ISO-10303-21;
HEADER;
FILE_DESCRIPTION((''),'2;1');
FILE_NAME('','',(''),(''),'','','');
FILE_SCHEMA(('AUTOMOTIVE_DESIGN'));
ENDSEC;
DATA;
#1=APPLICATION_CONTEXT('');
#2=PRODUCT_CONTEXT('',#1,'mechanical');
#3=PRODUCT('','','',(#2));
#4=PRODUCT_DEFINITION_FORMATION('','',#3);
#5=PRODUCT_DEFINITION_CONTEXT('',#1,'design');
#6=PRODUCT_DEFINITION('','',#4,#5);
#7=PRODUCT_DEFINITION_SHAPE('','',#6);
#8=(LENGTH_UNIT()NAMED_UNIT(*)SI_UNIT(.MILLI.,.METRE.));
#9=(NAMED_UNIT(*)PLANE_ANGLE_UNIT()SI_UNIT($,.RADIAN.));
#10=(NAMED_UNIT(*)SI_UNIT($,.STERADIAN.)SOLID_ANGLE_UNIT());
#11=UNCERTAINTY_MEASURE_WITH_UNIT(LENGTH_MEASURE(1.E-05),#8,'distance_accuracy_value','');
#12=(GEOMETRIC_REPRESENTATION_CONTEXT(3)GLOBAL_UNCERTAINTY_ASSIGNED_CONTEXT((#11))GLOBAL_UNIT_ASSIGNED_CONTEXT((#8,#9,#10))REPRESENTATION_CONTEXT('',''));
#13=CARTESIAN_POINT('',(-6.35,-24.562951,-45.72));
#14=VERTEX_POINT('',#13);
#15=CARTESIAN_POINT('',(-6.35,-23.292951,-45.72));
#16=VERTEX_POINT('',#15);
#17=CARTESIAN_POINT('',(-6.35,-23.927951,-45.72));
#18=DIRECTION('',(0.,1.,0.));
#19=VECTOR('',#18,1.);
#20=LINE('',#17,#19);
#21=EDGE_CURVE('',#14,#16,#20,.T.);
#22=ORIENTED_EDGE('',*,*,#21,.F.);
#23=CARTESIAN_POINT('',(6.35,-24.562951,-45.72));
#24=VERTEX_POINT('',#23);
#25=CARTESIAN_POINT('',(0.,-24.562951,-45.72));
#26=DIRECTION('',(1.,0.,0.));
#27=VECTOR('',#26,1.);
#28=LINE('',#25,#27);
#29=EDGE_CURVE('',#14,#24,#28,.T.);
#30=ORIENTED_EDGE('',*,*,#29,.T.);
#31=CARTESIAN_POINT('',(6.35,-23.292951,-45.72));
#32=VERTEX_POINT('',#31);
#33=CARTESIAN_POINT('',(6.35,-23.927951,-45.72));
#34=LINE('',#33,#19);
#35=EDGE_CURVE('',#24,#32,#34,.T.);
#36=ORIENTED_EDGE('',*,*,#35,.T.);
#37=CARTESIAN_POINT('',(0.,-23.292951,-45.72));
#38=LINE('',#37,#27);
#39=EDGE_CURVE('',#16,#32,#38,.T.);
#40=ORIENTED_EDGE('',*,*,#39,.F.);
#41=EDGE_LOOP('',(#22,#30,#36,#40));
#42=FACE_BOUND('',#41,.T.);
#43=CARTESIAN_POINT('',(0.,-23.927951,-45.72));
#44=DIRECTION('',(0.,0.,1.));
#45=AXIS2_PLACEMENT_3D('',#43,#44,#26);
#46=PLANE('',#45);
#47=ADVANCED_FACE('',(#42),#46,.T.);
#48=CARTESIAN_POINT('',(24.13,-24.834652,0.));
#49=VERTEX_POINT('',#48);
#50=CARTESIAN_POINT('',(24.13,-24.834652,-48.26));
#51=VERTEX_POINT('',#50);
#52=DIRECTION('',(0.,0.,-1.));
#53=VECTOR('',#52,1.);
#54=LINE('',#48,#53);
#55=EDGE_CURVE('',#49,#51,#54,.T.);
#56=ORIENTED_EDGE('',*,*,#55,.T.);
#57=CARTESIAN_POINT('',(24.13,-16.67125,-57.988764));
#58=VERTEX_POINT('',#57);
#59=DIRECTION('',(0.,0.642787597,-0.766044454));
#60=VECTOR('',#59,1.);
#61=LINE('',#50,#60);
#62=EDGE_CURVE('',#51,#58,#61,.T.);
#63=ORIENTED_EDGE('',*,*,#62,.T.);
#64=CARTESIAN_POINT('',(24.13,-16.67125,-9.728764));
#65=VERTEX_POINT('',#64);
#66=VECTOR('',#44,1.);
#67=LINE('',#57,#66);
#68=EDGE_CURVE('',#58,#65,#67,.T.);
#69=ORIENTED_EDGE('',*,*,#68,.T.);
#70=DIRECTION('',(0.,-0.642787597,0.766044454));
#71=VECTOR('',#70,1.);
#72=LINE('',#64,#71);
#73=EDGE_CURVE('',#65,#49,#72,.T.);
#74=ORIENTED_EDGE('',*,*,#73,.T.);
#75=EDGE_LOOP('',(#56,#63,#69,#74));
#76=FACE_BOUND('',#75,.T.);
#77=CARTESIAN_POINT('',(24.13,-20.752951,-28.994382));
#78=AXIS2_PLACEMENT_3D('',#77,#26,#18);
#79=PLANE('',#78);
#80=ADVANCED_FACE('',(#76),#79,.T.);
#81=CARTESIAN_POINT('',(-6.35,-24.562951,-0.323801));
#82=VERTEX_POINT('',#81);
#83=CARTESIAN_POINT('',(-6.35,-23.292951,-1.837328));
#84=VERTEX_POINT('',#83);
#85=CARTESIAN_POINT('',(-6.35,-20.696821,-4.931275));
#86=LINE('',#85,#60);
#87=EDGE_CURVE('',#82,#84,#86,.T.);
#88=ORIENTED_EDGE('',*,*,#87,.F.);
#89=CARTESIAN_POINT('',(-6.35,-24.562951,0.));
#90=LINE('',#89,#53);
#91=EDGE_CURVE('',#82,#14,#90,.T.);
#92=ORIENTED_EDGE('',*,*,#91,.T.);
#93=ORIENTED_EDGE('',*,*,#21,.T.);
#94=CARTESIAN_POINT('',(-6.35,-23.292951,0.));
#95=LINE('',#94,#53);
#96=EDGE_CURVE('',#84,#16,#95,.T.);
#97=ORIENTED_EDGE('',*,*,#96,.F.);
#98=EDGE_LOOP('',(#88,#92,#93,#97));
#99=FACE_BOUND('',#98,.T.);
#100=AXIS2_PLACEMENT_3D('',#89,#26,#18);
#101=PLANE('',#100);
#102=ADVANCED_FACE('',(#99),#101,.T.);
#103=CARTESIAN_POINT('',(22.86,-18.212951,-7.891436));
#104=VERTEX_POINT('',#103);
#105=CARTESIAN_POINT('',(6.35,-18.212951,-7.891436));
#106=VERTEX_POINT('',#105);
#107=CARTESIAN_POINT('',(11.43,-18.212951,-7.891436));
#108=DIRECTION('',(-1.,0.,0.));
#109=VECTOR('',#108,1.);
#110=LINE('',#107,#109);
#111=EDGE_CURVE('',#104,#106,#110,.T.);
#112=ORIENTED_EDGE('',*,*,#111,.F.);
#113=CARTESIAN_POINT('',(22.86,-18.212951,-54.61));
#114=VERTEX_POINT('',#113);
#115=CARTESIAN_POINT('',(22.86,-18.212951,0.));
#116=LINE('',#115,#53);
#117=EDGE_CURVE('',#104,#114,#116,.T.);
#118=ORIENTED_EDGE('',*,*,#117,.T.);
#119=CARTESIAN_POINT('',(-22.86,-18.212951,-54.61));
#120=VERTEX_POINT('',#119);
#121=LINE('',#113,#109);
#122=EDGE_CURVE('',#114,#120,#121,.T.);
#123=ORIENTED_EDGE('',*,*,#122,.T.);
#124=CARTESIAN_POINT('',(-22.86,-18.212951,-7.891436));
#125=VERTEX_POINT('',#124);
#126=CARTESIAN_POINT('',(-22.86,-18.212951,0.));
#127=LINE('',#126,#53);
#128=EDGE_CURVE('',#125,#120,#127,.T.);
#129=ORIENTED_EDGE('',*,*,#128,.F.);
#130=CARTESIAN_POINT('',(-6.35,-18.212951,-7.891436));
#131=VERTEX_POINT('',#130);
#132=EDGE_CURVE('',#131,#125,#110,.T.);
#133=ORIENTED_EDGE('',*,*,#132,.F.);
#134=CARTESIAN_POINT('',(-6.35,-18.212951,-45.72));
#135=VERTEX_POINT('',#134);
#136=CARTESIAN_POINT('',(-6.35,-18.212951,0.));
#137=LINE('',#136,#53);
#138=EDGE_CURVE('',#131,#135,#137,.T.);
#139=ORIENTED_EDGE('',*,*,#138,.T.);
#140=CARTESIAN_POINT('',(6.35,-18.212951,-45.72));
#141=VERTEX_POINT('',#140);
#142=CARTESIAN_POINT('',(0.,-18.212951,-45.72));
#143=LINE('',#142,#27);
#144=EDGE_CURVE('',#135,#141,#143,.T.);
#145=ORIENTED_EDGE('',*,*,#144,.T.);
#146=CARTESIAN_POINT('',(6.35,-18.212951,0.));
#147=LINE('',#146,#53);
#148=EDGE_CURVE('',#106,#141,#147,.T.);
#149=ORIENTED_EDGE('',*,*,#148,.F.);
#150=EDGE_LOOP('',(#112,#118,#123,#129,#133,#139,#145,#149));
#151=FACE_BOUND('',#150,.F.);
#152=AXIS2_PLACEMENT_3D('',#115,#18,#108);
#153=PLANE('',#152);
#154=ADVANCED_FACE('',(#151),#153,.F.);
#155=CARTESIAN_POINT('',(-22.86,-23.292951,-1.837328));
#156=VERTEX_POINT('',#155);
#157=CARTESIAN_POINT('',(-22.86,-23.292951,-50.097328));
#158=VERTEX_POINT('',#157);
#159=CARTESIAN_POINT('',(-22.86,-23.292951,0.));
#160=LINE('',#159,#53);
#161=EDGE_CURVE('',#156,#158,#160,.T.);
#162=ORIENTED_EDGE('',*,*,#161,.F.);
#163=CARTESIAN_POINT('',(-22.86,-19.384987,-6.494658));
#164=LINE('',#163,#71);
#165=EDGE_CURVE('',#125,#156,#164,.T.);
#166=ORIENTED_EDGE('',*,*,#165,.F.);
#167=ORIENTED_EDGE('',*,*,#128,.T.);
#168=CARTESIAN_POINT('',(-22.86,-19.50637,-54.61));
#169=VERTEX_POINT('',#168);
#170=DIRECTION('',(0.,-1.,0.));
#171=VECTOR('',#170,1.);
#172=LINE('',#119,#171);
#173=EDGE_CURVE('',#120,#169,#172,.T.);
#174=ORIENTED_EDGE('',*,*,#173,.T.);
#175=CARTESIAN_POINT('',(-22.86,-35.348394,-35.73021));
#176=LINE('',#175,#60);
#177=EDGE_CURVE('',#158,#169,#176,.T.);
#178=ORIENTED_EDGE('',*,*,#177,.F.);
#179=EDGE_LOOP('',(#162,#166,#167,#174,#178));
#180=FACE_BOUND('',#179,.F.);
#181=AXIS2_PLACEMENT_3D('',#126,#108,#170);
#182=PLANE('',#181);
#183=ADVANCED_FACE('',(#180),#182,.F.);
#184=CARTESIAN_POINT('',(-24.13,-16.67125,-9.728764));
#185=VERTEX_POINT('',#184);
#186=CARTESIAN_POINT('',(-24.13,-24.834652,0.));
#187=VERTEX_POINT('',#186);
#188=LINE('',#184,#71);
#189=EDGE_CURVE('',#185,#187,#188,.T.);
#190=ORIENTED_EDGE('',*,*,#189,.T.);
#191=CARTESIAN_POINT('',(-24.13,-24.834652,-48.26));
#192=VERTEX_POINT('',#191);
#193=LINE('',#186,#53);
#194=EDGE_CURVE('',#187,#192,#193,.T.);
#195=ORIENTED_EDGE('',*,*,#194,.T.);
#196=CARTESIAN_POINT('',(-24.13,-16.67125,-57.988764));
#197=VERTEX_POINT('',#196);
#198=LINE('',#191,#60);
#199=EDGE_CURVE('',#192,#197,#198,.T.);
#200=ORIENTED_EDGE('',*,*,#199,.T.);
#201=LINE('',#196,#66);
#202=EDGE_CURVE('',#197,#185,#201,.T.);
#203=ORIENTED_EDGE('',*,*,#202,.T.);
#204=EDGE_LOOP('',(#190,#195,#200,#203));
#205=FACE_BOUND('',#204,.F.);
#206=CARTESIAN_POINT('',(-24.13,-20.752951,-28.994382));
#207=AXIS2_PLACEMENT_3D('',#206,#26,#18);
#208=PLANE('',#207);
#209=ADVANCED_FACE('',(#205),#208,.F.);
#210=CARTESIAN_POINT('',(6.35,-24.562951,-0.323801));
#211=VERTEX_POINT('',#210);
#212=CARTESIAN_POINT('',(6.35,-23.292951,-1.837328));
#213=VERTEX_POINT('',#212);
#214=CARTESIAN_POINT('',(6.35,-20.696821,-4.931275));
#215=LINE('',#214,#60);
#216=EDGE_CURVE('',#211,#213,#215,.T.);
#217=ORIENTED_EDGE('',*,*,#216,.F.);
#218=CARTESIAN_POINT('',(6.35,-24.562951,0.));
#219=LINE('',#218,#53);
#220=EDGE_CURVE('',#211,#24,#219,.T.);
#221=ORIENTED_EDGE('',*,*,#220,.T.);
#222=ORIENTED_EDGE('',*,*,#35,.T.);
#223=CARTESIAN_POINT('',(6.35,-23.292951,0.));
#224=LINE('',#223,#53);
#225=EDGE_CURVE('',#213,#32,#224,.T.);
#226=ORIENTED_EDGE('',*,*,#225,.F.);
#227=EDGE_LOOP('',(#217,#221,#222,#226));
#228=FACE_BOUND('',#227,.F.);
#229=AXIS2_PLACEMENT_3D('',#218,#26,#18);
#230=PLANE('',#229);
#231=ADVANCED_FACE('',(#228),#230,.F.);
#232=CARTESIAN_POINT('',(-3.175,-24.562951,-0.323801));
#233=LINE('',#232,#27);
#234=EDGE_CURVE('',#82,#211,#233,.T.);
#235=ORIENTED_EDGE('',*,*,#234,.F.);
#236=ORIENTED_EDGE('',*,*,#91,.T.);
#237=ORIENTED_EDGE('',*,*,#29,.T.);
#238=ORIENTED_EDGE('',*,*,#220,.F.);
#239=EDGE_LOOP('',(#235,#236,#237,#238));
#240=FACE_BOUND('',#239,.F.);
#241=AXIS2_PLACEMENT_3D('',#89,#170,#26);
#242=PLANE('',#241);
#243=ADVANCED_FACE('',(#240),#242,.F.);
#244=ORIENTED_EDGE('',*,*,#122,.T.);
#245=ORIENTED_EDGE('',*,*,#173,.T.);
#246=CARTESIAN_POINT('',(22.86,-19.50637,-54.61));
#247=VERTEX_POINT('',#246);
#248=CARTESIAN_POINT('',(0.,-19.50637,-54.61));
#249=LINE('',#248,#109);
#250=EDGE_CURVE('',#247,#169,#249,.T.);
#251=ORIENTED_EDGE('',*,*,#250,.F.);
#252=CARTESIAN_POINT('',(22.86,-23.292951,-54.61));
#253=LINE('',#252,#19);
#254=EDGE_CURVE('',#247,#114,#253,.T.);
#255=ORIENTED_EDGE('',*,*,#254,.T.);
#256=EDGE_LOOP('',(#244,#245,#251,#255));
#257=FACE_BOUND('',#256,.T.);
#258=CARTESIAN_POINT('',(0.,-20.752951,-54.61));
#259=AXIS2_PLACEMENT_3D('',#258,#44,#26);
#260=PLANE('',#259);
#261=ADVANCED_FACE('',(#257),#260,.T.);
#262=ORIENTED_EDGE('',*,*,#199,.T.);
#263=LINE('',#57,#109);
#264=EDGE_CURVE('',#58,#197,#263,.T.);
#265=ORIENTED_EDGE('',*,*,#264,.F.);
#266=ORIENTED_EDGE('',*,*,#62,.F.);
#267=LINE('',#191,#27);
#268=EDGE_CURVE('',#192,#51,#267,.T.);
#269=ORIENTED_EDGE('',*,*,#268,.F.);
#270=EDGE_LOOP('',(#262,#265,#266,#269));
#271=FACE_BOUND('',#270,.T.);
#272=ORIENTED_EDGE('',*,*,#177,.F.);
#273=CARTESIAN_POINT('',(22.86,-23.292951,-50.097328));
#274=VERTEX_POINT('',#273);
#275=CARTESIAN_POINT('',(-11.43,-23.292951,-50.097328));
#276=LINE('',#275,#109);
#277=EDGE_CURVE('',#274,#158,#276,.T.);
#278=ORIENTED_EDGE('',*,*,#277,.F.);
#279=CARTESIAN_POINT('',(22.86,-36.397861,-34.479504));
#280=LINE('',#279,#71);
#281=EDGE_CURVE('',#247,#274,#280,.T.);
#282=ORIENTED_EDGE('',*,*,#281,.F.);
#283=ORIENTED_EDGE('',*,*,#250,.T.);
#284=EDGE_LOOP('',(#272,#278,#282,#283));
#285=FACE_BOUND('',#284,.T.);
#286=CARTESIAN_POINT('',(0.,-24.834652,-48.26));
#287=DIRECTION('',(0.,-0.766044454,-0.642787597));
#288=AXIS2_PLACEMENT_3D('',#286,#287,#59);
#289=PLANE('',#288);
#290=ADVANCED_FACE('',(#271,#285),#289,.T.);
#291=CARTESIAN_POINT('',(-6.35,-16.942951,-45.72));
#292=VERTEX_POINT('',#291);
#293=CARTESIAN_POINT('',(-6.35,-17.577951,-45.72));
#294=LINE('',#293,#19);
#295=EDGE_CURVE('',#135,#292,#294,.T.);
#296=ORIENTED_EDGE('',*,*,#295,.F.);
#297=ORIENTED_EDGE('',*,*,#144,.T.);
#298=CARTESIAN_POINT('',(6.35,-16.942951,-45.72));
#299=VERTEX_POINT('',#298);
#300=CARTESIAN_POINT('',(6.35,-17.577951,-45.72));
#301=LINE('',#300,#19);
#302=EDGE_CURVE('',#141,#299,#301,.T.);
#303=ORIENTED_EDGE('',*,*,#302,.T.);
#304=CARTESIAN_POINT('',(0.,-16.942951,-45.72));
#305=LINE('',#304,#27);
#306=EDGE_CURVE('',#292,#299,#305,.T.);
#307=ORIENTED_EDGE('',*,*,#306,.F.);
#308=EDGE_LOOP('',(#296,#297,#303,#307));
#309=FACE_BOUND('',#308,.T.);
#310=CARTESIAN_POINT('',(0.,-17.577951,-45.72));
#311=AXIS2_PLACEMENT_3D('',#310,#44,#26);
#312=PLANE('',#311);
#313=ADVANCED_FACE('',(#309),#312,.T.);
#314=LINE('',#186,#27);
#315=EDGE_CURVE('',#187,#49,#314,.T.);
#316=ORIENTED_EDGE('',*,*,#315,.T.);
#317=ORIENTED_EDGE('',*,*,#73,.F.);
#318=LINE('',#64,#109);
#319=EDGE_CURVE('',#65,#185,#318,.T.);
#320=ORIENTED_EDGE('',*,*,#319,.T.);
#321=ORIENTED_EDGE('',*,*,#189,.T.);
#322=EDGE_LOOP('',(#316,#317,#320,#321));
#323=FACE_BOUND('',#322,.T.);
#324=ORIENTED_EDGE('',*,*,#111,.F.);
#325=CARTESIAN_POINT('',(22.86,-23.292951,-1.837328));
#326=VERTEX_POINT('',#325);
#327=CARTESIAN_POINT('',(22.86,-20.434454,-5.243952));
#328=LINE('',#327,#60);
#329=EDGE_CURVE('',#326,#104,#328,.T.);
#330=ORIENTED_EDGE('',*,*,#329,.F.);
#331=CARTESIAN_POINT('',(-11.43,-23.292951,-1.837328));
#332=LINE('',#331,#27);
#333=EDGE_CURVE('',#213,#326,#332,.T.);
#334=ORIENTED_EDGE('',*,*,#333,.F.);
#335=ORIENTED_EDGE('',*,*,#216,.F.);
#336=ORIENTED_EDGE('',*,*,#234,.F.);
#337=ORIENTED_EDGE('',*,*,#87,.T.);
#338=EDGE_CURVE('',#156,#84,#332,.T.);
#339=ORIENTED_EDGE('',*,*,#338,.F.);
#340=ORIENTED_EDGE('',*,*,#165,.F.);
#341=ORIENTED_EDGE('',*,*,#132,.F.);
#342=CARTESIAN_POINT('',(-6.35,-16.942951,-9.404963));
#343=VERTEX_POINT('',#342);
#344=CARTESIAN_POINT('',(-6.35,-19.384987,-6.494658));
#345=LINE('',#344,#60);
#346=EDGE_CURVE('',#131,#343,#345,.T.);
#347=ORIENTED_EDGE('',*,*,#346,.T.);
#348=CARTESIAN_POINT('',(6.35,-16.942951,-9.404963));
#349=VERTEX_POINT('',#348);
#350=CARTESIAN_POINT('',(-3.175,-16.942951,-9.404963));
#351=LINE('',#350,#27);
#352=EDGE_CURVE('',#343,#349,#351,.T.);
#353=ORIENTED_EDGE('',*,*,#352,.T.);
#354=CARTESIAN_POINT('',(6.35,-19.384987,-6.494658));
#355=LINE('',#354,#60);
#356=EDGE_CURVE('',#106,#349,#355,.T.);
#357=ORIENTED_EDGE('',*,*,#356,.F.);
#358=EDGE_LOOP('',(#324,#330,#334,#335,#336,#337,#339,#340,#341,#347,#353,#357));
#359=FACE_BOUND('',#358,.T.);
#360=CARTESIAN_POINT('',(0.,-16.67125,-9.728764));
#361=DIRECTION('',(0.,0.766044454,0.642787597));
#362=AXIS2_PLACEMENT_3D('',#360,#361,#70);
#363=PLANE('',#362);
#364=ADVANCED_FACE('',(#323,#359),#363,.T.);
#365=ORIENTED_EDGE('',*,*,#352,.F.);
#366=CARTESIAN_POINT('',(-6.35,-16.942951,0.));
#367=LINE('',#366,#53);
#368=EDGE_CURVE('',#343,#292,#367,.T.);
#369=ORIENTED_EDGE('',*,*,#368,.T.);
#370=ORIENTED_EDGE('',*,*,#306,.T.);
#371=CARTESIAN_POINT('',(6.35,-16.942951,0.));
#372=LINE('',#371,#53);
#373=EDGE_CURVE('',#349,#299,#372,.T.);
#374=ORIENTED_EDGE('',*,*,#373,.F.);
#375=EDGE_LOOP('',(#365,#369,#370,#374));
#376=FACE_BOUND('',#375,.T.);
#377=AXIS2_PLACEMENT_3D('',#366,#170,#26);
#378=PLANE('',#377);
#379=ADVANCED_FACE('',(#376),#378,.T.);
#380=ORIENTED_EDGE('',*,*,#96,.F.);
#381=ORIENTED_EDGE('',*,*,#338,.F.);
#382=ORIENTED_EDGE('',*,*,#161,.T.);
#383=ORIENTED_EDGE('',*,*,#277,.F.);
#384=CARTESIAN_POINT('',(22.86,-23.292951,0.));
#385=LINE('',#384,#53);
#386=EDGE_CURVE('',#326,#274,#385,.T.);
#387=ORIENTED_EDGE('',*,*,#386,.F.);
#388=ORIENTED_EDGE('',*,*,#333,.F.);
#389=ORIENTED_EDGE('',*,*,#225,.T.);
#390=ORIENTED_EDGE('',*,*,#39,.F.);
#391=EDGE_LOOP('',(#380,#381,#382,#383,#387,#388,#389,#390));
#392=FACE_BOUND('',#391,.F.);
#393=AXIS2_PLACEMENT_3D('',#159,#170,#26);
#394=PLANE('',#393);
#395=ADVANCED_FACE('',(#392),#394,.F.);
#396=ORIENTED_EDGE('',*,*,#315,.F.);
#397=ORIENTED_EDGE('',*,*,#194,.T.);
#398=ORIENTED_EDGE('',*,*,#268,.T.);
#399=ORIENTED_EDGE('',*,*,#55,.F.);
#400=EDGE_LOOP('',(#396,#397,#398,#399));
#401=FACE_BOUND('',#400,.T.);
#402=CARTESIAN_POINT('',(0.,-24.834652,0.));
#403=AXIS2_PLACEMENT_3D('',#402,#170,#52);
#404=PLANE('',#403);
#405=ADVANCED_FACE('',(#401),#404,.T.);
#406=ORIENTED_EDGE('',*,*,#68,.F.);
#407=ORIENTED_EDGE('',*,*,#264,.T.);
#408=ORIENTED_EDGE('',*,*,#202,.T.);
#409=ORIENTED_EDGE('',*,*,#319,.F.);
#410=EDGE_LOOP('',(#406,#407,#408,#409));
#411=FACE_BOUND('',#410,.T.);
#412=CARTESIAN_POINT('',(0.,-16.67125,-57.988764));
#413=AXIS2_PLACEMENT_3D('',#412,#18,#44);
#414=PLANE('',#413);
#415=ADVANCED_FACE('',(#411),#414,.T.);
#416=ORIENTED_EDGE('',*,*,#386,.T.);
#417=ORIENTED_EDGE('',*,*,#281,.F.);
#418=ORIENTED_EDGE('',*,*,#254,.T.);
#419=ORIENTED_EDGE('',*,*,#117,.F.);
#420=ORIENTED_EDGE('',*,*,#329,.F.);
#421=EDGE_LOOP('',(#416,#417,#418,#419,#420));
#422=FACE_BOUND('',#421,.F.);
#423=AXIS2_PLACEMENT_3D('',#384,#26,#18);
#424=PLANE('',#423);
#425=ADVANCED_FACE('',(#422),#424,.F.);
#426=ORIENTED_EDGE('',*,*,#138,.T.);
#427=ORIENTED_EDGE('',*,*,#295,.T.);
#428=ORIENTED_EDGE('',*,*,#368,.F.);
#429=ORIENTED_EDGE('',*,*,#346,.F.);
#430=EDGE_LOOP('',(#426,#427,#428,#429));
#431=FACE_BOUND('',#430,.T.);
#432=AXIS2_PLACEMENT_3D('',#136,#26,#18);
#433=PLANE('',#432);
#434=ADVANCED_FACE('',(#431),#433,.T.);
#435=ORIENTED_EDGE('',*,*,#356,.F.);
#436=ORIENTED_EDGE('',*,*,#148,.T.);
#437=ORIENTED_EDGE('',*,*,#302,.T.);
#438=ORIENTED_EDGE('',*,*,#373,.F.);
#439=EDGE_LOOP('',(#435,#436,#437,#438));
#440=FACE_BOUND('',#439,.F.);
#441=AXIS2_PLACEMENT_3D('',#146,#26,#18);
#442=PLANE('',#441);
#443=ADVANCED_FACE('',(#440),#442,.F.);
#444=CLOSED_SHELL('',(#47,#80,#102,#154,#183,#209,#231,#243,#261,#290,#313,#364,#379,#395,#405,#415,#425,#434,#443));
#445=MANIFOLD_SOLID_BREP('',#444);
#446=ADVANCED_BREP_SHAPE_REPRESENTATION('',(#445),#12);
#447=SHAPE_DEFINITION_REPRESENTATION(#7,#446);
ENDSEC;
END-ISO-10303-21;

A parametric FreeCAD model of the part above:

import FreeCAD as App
import Part
import Sketcher

V = App.Vector
Q = App.Units.Quantity

doc = App.newDocument("Part")
body = doc.addObject("PartDesign::Body", "Body")

# Sketch on YZ plane
sketch1 = body.newObject("Sketcher::SketchObject", "Sketch")
sketch1.AttachmentSupport = (doc.getObject("YZ_Plane"), [""])
sketch1.MapMode = "FlatFace"
sketch1.addGeometry([
    Part.LineSegment(V(-17, -10, 0), V(-25, 0, 0)),
    Part.LineSegment(V(-25, 0, 0), V(-25, -48, 0)),
    Part.LineSegment(V(-25, -48, 0), V(-17, -58, 0)),
    Part.LineSegment(V(-17, -58, 0), V(-17, -10, 0)),
], False)
sketch1.addConstraint([
    Sketcher.Constraint("Coincident", 0, 2, 1, 1),
    Sketcher.Constraint("Coincident", 1, 2, 2, 1),
    Sketcher.Constraint("Coincident", 2, 2, 3, 1),
    Sketcher.Constraint("Coincident", 3, 2, 0, 1),
    Sketcher.Constraint("Vertical", 1),
    Sketcher.Constraint("Vertical", 3),
    Sketcher.Constraint("PointOnObject", 0, 2, -1),
    Sketcher.Constraint("Parallel", 0, 2),
    Sketcher.Constraint("DistanceY", 1, 2, 1, 1, Q("1.9 in")),
    Sketcher.Constraint("Angle", 0, Q("129.999999 deg")),
    Sketcher.Constraint("Distance", 0, Q("0.5 in")),
    Sketcher.Constraint("DistanceX", 0, 2, -1, 1, Q("24.834652 mm")),
])
pad1 = body.newObject("PartDesign::Pad", "Pad")
pad1.Profile = sketch1
pad1.Length = Q("1.9 in")
pad1.Midplane = True

# Sketch on XY plane
sketch2 = body.newObject("Sketcher::SketchObject", "Sketch001")
sketch2.AttachmentSupport = (doc.getObject("XY_Plane"), [""])
sketch2.MapMode = "FlatFace"
sketch2.addGeometry([
    Part.LineSegment(V(-6.3, -16.9, 0), V(-6.3, -18.2, 0)),  # 0
    Part.LineSegment(V(-6.3, -18.2, 0), V(6.3, -18.2, 0)),  # 1
    Part.LineSegment(V(6.3, -18.2, 0), V(6.3, -16.9, 0)),  # 2
    Part.LineSegment(V(6.3, -16.9, 0), V(-6.3, -16.9, 0)),  # 3
    Part.LineSegment(V(-6.3, -23.3, 0), V(-6.3, -24.6, 0)),  # 4
    Part.LineSegment(V(-6.3, -24.6, 0), V(6.3, -24.6, 0)),  # 5
    Part.LineSegment(V(6.3, -24.6, 0), V(6.3, -23.3, 0)),  # 6
    Part.LineSegment(V(6.3, -23.3, 0), V(-6.3, -23.3, 0)),  # 7
], False)
sketch2.addConstraint([
    Sketcher.Constraint("Coincident", 0, 2, 1, 1),
    Sketcher.Constraint("Coincident", 1, 2, 2, 1),
    Sketcher.Constraint("Coincident", 2, 2, 3, 1),
    Sketcher.Constraint("Coincident", 3, 2, 0, 1),
    Sketcher.Constraint("Coincident", 4, 2, 5, 1),
    Sketcher.Constraint("Coincident", 5, 2, 6, 1),
    Sketcher.Constraint("Coincident", 6, 2, 7, 1),
    Sketcher.Constraint("Coincident", 7, 2, 4, 1),
    Sketcher.Constraint("Vertical", 0),
    Sketcher.Constraint("Horizontal", 1),
    Sketcher.Constraint("Vertical", 2),
    Sketcher.Constraint("Horizontal", 3),
    Sketcher.Constraint("Vertical", 4),
    Sketcher.Constraint("Horizontal", 5),
    Sketcher.Constraint("Vertical", 6),
    Sketcher.Constraint("Horizontal", 7),
    Sketcher.Constraint("Vertical", 3, 2, 4, 2),
    Sketcher.Constraint("Vertical", 2, 2, 5, 2),
    Sketcher.Constraint("Equal", 2, 4),
    Sketcher.Constraint("DistanceX", 1, 1, 1, 2, Q("0.5 in")),
    Sketcher.Constraint("DistanceY", 0, 2, 0, 1, Q("0.05 in")),
    Sketcher.Constraint("DistanceY", 4, 2, 3, 2, Q("0.3 in")),
    Sketcher.Constraint("DistanceX", 0, 2, -1, 1, Q("0.25 in")),
    Sketcher.Constraint("DistanceY", 0, 2, -1, 1, Q("18.212951 mm")),
])
pocket1 = body.newObject("PartDesign::Pocket", "Pocket")
pocket1.Profile = sketch2
pocket1.Length = Q("1.8 in")

# Sketch on XY plane
sketch3 = body.newObject("Sketcher::SketchObject", "Sketch002")
sketch3.AttachmentSupport = (doc.getObject("XY_Plane"), [""])
sketch3.MapMode = "FlatFace"
sketch3.addGeometry([
    Part.LineSegment(V(23, -23, 0), V(23, -18, 0)),
    Part.LineSegment(V(23, -18, 0), V(-23, -18, 0)),
    Part.LineSegment(V(-23, -18, 0), V(-23, -23, 0)),
    Part.LineSegment(V(-23, -23, 0), V(23, -23, 0)),
], False)
sketch3.addConstraint([
    Sketcher.Constraint("Coincident", 0, 2, 1, 1),
    Sketcher.Constraint("Coincident", 1, 2, 2, 1),
    Sketcher.Constraint("Coincident", 2, 2, 3, 1),
    Sketcher.Constraint("Coincident", 3, 2, 0, 1),
    Sketcher.Constraint("Vertical", 0),
    Sketcher.Constraint("Horizontal", 1),
    Sketcher.Constraint("Vertical", 2),
    Sketcher.Constraint("Horizontal", 3),
    Sketcher.Constraint("DistanceX", 1, 2, 1, 1, Q("1.8 in")),
    Sketcher.Constraint("DistanceY", 0, 1, 0, 2, Q("0.2 in")),
    Sketcher.Constraint("DistanceX", -1, 1, 0, 2, Q("0.9 in")),
    Sketcher.Constraint("DistanceY", 0, 2, -1, 1, Q("18.212951 mm")),
])
pocket2 = body.newObject("PartDesign::Pocket", "Pocket001")
pocket2.Profile = sketch3
pocket2.Length = Q("2.15 in")

doc.recompute()
